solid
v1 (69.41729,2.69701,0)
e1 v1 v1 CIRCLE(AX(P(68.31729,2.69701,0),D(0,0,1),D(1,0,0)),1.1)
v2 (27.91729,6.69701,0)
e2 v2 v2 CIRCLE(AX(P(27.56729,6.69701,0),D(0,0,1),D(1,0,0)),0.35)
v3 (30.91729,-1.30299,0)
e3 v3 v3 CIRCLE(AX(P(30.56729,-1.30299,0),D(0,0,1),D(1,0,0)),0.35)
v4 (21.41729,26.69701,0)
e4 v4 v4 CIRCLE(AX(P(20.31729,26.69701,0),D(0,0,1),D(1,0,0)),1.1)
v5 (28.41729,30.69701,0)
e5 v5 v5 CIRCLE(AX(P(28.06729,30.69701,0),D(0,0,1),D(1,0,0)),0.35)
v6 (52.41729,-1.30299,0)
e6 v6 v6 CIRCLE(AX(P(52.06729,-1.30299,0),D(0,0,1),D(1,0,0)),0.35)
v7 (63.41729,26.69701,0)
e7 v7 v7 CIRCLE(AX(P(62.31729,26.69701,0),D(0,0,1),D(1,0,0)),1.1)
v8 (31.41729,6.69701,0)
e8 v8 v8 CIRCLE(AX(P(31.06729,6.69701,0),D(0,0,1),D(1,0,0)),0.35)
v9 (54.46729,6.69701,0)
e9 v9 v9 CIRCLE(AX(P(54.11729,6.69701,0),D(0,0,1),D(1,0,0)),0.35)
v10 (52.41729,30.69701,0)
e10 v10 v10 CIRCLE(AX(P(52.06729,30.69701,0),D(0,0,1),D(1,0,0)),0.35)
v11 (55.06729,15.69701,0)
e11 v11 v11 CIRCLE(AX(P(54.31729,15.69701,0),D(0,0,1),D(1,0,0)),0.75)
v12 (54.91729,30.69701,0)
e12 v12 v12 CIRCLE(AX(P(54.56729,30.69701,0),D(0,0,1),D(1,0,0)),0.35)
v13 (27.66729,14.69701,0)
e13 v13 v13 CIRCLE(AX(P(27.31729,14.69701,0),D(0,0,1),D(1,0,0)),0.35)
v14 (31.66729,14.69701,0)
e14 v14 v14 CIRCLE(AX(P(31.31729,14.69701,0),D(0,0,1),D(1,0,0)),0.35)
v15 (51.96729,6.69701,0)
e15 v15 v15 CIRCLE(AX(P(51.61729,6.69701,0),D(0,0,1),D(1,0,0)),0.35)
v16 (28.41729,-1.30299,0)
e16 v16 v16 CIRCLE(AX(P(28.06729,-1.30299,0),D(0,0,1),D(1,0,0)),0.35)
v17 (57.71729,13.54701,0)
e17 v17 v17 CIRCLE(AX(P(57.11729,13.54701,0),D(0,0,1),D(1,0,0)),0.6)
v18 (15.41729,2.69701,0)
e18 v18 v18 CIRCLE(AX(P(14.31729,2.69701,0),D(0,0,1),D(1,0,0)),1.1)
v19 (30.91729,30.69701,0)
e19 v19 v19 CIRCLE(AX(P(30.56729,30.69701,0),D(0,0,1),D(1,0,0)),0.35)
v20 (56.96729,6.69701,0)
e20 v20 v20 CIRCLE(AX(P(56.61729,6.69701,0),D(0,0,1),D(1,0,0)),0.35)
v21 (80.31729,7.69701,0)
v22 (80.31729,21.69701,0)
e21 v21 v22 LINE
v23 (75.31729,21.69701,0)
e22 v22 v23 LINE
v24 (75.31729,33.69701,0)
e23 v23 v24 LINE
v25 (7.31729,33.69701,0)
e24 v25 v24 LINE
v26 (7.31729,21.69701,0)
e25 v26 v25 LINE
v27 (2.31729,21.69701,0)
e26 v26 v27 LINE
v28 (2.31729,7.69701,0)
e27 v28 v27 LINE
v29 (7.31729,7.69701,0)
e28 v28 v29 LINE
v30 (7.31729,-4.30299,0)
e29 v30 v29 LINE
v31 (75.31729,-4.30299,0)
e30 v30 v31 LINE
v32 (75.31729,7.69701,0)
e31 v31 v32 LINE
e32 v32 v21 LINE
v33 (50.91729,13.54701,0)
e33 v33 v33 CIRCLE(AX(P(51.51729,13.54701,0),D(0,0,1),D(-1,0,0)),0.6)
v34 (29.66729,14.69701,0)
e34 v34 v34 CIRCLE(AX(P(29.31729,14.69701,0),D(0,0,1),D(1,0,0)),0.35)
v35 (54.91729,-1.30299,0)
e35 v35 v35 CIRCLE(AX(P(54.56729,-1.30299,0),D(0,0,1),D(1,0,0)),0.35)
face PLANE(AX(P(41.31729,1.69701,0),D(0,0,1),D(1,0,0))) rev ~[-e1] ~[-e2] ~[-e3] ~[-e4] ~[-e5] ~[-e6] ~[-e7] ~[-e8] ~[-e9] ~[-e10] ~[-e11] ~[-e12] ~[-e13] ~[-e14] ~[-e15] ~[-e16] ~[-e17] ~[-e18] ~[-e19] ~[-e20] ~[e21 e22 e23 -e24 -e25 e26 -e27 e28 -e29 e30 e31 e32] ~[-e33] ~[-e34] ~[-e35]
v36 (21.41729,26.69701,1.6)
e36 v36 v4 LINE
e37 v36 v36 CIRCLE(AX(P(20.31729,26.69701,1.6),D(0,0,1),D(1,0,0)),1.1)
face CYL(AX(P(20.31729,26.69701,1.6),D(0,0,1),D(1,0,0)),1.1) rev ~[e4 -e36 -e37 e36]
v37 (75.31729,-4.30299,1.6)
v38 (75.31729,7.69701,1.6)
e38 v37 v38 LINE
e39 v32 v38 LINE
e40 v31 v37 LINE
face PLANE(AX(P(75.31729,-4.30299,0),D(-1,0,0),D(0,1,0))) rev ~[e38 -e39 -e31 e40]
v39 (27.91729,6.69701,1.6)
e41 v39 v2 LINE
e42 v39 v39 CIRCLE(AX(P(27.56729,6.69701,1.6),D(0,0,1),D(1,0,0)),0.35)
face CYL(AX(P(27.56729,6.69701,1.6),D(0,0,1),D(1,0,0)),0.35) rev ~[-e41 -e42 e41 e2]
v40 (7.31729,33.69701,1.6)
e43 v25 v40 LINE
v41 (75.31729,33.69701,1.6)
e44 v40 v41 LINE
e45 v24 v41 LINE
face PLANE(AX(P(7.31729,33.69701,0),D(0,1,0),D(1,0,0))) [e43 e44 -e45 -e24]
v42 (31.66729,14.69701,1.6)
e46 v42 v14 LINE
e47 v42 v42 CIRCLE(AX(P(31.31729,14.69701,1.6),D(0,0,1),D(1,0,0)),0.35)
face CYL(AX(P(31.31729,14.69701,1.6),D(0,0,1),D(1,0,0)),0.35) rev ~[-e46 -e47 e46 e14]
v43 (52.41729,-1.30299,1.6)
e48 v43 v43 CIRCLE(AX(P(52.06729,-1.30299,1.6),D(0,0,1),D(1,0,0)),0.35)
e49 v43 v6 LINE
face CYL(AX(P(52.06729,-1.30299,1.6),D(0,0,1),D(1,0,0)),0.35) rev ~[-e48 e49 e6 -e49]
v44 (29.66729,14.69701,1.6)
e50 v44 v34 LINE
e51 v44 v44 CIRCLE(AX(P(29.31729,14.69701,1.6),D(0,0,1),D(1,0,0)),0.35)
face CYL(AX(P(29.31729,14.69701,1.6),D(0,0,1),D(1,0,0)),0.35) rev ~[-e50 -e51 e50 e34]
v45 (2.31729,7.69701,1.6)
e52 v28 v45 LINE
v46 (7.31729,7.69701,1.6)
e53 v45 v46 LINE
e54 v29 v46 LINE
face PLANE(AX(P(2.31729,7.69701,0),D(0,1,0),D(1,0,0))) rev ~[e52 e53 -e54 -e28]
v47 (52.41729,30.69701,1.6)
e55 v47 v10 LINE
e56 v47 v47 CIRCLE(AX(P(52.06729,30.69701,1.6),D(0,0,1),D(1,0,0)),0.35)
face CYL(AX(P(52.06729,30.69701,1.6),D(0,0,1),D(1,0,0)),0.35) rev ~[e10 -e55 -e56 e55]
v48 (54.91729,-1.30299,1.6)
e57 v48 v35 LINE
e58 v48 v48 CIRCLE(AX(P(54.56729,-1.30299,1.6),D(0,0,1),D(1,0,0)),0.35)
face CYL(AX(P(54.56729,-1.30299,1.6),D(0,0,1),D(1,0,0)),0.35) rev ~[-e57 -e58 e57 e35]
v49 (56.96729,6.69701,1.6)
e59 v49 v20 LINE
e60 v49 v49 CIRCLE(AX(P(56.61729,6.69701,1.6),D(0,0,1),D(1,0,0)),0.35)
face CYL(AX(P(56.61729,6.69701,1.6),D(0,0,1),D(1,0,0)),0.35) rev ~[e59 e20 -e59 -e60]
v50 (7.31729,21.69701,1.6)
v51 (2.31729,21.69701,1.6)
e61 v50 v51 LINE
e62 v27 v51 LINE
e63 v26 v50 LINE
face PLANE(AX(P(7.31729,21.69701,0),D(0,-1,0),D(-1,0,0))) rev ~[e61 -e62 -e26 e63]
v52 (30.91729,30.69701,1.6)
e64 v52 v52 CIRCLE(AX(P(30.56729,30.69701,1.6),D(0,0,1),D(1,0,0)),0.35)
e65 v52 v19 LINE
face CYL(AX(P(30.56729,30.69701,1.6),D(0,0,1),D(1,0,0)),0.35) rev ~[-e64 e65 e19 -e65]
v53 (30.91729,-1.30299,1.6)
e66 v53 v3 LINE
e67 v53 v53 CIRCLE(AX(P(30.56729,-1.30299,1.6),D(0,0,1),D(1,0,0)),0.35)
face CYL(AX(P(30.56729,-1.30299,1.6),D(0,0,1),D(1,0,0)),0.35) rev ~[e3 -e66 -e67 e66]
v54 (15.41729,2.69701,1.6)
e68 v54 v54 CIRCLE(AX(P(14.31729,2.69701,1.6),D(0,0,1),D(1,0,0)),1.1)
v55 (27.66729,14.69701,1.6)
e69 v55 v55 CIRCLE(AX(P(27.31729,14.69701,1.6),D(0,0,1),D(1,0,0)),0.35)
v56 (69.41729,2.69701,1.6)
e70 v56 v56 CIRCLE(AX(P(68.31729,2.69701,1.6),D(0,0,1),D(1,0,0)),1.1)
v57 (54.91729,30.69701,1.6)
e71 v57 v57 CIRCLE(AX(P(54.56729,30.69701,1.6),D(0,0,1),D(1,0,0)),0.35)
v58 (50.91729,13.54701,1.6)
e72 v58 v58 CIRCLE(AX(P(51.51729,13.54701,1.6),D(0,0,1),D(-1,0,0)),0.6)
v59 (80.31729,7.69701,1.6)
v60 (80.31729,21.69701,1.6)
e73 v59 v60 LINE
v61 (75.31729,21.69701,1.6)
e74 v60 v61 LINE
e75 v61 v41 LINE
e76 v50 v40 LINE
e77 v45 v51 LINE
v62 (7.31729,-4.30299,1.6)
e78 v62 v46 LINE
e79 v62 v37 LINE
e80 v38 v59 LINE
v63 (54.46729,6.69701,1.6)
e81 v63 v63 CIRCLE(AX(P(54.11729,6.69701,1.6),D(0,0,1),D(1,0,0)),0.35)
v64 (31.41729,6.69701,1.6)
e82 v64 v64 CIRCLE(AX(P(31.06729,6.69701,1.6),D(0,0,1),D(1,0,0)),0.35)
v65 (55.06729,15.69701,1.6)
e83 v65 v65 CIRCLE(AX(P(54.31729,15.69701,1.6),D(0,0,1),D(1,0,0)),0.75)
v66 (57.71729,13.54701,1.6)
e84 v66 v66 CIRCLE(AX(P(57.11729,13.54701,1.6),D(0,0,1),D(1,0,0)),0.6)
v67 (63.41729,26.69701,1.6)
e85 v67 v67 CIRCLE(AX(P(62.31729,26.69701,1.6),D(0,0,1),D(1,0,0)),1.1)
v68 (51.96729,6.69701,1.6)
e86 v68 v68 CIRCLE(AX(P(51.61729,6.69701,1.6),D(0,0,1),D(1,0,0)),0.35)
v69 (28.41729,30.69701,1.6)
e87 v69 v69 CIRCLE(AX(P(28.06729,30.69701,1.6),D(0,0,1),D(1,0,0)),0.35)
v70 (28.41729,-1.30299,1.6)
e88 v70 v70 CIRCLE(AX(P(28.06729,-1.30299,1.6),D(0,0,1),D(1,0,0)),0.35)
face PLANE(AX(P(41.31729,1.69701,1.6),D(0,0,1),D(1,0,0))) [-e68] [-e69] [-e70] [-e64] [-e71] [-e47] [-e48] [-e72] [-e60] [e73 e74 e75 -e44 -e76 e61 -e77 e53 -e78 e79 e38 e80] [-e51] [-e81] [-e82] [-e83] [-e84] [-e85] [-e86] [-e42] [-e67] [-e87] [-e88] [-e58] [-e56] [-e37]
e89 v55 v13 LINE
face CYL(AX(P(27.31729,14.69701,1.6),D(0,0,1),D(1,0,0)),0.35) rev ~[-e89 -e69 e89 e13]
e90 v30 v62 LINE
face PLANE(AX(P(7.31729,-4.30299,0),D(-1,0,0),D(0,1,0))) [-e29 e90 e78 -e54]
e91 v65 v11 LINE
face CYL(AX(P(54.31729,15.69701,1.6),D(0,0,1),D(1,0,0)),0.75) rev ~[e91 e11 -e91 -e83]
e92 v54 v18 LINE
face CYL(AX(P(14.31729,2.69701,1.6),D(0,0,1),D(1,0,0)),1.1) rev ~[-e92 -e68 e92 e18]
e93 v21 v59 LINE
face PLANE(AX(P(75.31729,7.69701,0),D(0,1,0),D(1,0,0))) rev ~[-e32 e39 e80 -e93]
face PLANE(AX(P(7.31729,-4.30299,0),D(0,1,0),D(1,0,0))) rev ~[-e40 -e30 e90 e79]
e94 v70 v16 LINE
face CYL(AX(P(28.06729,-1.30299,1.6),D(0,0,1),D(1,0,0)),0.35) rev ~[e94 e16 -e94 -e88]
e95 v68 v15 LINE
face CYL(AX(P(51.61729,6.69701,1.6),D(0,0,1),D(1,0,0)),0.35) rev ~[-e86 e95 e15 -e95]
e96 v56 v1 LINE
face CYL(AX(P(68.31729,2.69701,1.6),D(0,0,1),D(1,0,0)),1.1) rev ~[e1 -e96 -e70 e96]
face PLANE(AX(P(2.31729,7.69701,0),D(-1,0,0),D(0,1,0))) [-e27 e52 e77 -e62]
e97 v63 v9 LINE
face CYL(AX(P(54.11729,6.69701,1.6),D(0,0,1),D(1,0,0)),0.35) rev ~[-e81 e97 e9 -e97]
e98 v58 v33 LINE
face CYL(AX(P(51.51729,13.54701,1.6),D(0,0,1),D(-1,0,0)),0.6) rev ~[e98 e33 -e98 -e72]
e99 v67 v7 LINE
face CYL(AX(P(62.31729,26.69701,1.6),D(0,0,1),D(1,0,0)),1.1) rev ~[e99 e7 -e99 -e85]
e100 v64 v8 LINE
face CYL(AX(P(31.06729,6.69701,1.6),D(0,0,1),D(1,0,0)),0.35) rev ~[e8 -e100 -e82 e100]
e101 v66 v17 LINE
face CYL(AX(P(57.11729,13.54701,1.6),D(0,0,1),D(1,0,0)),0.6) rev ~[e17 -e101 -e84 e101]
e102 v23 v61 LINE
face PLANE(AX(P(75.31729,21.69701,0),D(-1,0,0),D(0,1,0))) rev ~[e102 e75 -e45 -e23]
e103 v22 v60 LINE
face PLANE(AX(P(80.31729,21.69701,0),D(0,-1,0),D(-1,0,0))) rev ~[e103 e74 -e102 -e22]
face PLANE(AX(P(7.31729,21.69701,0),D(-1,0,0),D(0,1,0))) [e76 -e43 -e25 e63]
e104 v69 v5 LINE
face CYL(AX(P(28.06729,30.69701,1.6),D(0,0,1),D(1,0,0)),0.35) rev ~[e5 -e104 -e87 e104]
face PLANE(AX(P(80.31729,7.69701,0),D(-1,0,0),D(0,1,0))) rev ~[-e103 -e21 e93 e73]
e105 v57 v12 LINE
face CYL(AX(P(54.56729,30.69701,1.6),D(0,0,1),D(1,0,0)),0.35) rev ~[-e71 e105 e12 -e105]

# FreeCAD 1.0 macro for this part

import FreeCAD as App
import Part
import Sketcher
Q = App.Units.Quantity

doc = App.newDocument("Part")
body = doc.addObject("PartDesign::Body", "Body")

# Sketch on XY plane
sketch1 = body.newObject("Sketcher::SketchObject", "Sketch")
sketch1.AttachmentSupport = (doc.getObject("XY_Plane"), [""])
sketch1.MapMode = "FlatFace"
sketch1.addGeometry([
    Part.LineSegment(App.Vector(7, 8, 0), App.Vector(7, -4, 0)),  # 0
    Part.LineSegment(App.Vector(7, -4, 0), App.Vector(75, -4, 0)),  # 1
    Part.LineSegment(App.Vector(75, -4, 0), App.Vector(75, 8, 0)),  # 2
    Part.LineSegment(App.Vector(75, 8, 0), App.Vector(80, 8, 0)),  # 3
    Part.LineSegment(App.Vector(80, 8, 0), App.Vector(80, 22, 0)),  # 4
    Part.LineSegment(App.Vector(80, 22, 0), App.Vector(75, 22, 0)),  # 5
    Part.LineSegment(App.Vector(75, 22, 0), App.Vector(75, 34, 0)),  # 6
    Part.LineSegment(App.Vector(75, 34, 0), App.Vector(7, 34, 0)),  # 7
    Part.LineSegment(App.Vector(7, 34, 0), App.Vector(7, 22, 0)),  # 8
    Part.LineSegment(App.Vector(7, 22, 0), App.Vector(2, 22, 0)),  # 9
    Part.LineSegment(App.Vector(2, 22, 0), App.Vector(2, 8, 0)),  # 10
    Part.LineSegment(App.Vector(2, 8, 0), App.Vector(7, 8, 0)),  # 11
], False)
sketch1.addConstraint([
    Sketcher.Constraint("Coincident", 0, 2, 1, 1),
    Sketcher.Constraint("Coincident", 1, 2, 2, 1),
    Sketcher.Constraint("Coincident", 2, 2, 3, 1),
    Sketcher.Constraint("Coincident", 3, 2, 4, 1),
    Sketcher.Constraint("Coincident", 4, 2, 5, 1),
    Sketcher.Constraint("Coincident", 5, 2, 6, 1),
    Sketcher.Constraint("Coincident", 6, 2, 7, 1),
    Sketcher.Constraint("Coincident", 7, 2, 8, 1),
    Sketcher.Constraint("Coincident", 8, 2, 9, 1),
    Sketcher.Constraint("Coincident", 9, 2, 10, 1),
    Sketcher.Constraint("Coincident", 10, 2, 11, 1),
    Sketcher.Constraint("Coincident", 11, 2, 0, 1),
    Sketcher.Constraint("Vertical", 0),
    Sketcher.Constraint("Horizontal", 1),
    Sketcher.Constraint("Vertical", 2),
    Sketcher.Constraint("Horizontal", 3),
    Sketcher.Constraint("Vertical", 4),
    Sketcher.Constraint("Horizontal", 5),
    Sketcher.Constraint("Vertical", 6),
    Sketcher.Constraint("Horizontal", 7),
    Sketcher.Constraint("Vertical", 8),
    Sketcher.Constraint("Horizontal", 9),
    Sketcher.Constraint("Vertical", 10),
    Sketcher.Constraint("Horizontal", 11),
    Sketcher.Constraint("Horizontal", 5, 2, 8, 2),
    Sketcher.Constraint("Horizontal", 3, 2, 10, 2),
    Sketcher.Constraint("Vertical", 2, 2, 5, 2),
    Sketcher.Constraint("Vertical", 0, 2, 7, 2),
    Sketcher.Constraint("Equal", 5, 9),
    Sketcher.Constraint("Equal", 2, 6),
    Sketcher.Constraint("DistanceX", 1, 1, 1, 2, Q("68 mm")),
    Sketcher.Constraint("DistanceX", 3, 1, 3, 2, Q("5 mm")),
    Sketcher.Constraint("DistanceY", 0, 2, 0, 1, Q("12 mm")),
    Sketcher.Constraint("DistanceY", 4, 1, 4, 2, Q("14 mm")),
    Sketcher.Constraint("DistanceX", -1, 1, 0, 2, Q("7.31729 mm")),
    Sketcher.Constraint("DistanceY", 0, 2, -1, 1, Q("4.30299 mm")),
])
pad1 = body.newObject("PartDesign::Pad", "Pad")
pad1.Profile = sketch1
pad1.Length = 1.6

# Sketch on XY plane
sketch2 = body.newObject("Sketcher::SketchObject", "Sketch001")
sketch2.AttachmentSupport = (doc.getObject("XY_Plane"), [""])
sketch2.MapMode = "FlatFace"
sketch2.AttachmentOffset = App.Placement(App.Vector(0, 0, 1.6), App.Rotation())
sketch2.addGeometry([
    Part.Circle(App.Vector(51.62, 6.7, 0), App.Vector(0, 0, 1), 0.35),  # 0
    Part.Circle(App.Vector(56.62, 6.7, 0), App.Vector(0, 0, 1), 0.35),  # 1
    Part.Circle(App.Vector(54.12, 6.7, 0), App.Vector(0, 0, 1), 0.35),  # 2
    Part.Circle(App.Vector(28.07, -1.3, 0), App.Vector(0, 0, 1), 0.35),  # 3
    Part.Circle(App.Vector(30.57, -1.3, 0), App.Vector(0, 0, 1), 0.35),  # 4
    Part.Circle(App.Vector(52.07, -1.3, 0), App.Vector(0, 0, 1), 0.35),  # 5
    Part.Circle(App.Vector(54.57, -1.3, 0), App.Vector(0, 0, 1), 0.35),  # 6
    Part.Circle(App.Vector(54.57, 30.7, 0), App.Vector(0, 0, 1), 0.35),  # 7
    Part.Circle(App.Vector(52.07, 30.7, 0), App.Vector(0, 0, 1), 0.35),  # 8
    Part.Circle(App.Vector(30.57, 30.7, 0), App.Vector(0, 0, 1), 0.35),  # 9
    Part.Circle(App.Vector(28.07, 30.7, 0), App.Vector(0, 0, 1), 0.35),  # 10
    Part.Circle(App.Vector(27.57, 6.7, 0), App.Vector(0, 0, 1), 0.35),  # 11
    Part.Circle(App.Vector(31.07, 6.7, 0), App.Vector(0, 0, 1), 0.35),  # 12
    Part.Circle(App.Vector(54.32, 15.7, 0), App.Vector(0, 0, 1), 0.75),  # 13
    Part.Circle(App.Vector(51.52, 13.55, 0), App.Vector(0, 0, 1), 0.6),  # 14
    Part.Circle(App.Vector(57.12, 13.55, 0), App.Vector(0, 0, 1), 0.6),  # 15
    Part.Circle(App.Vector(27.32, 14.7, 0), App.Vector(0, 0, 1), 0.35),  # 16
    Part.Circle(App.Vector(29.32, 14.7, 0), App.Vector(0, 0, 1), 0.35),  # 17
    Part.Circle(App.Vector(31.32, 14.7, 0), App.Vector(0, 0, 1), 0.35),  # 18
], False)
sketch2.addConstraint([
    Sketcher.Constraint("Equal", 0, 1),
    Sketcher.Constraint("Equal", 1, 2),
    Sketcher.Constraint("Equal", 2, 3),
    Sketcher.Constraint("Equal", 3, 4),
    Sketcher.Constraint("Equal", 4, 5),
    Sketcher.Constraint("Equal", 5, 6),
    Sketcher.Constraint("Equal", 6, 7),
    Sketcher.Constraint("Equal", 7, 8),
    Sketcher.Constraint("Equal", 8, 9),
    Sketcher.Constraint("Equal", 9, 10),
    Sketcher.Constraint("Equal", 10, 11),
    Sketcher.Constraint("Equal", 11, 12),
    Sketcher.Constraint("Equal", 14, 15),
    Sketcher.Constraint("Equal", 12, 16),
    Sketcher.Constraint("Equal", 16, 17),
    Sketcher.Constraint("Equal", 17, 18),
    Sketcher.Constraint("Horizontal", 0, 3, 1, 3),
    Sketcher.Constraint("Horizontal", 1, 3, 2, 3),
    Sketcher.Constraint("Horizontal", 3, 3, 4, 3),
    Sketcher.Constraint("Horizontal", 4, 3, 5, 3),
    Sketcher.Constraint("Horizontal", 5, 3, 6, 3),
    Sketcher.Constraint("Horizontal", 7, 3, 8, 3),
    Sketcher.Constraint("Horizontal", 8, 3, 9, 3),
    Sketcher.Constraint("Horizontal", 9, 3, 10, 3),
    Sketcher.Constraint("Horizontal", 2, 3, 11, 3),
    Sketcher.Constraint("Horizontal", 11, 3, 12, 3),
    Sketcher.Constraint("Horizontal", 14, 3, 15, 3),
    Sketcher.Constraint("Horizontal", 16, 3, 17, 3),
    Sketcher.Constraint("Horizontal", 17, 3, 18, 3),
    Sketcher.Constraint("Vertical", 6, 3, 7, 3),
    Sketcher.Constraint("Vertical", 5, 3, 8, 3),
    Sketcher.Constraint("Vertical", 4, 3, 9, 3),
    Sketcher.Constraint("Vertical", 3, 3, 10, 3),
    Sketcher.Constraint("Diameter", 0, Q("0.7 mm")),
    Sketcher.Constraint("Diameter", 13, Q("1.5 mm")),
    Sketcher.Constraint("Diameter", 14, Q("1.2 mm")),
    Sketcher.Constraint("DistanceX", 0, 3, 1, 3, Q("5 mm")),
    Sketcher.Constraint("DistanceY", 3, 3, 0, 3, Q("8 mm")),
    Sketcher.Constraint("DistanceX", 3, 3, 5, 3, Q("24 mm")),
    Sketcher.Constraint("DistanceX", 4, 3, 6, 3, Q("24 mm")),
    Sketcher.Constraint("DistanceY", 2, 3, 7, 3, Q("24 mm")),
    Sketcher.Constraint("DistanceX", 11, 3, 4, 3, Q("3 mm")),
    Sketcher.Constraint("DistanceX", 3, 3, 12, 3, Q("3 mm")),
    Sketcher.Constraint("DistanceY", 2, 3, 13, 3, Q("9 mm")),
    Sketcher.Constraint("DistanceX", 2, 3, 15, 3, Q("3 mm")),
    Sketcher.Constraint("DistanceY", 11, 3, 16, 3, Q("8 mm")),
    Sketcher.Constraint("DistanceX", 16, 3, 17, 3, Q("2 mm")),
    Sketcher.Constraint("DistanceX", 17, 3, 18, 3, Q("2 mm")),
    Sketcher.Constraint("DistanceX", 0, 3, 2, 3, Q("2.5 mm")),
    Sketcher.Constraint("DistanceX", 3, 3, 4, 3, Q("2.5 mm")),
    Sketcher.Constraint("DistanceX", 2, 3, 13, 3, Q("0.2 mm")),
    Sketcher.Constraint("DistanceX", 14, 3, 13, 3, Q("2.8 mm")),
    Sketcher.Constraint("DistanceX", 3, 3, 0, 3, Q("23.55 mm")),
    Sketcher.Constraint("DistanceY", 14, 3, 13, 3, Q("2.15 mm")),
    Sketcher.Constraint("DistanceX", 16, 3, 11, 3, Q("0.25 mm")),
    Sketcher.Constraint("DistanceX", -1, 1, 0, 3, Q("51.61729 mm")),
    Sketcher.Constraint("DistanceY", -1, 1, 0, 3, Q("6.69701 mm")),
])
pocket1 = body.newObject("PartDesign::Pocket", "Pocket")
pocket1.Profile = sketch2
pocket1.Length = 4

# Sketch on XY plane
sketch3 = body.newObject("Sketcher::SketchObject", "Sketch002")
sketch3.AttachmentSupport = (doc.getObject("XY_Plane"), [""])
sketch3.MapMode = "FlatFace"
sketch3.AttachmentOffset = App.Placement(App.Vector(0, 0, 1.6), App.Rotation())
sketch3.addGeometry([
    Part.Circle(App.Vector(62.3, 26.7, 0), App.Vector(0, 0, 1), 1.1),
    Part.Circle(App.Vector(20.3, 26.7, 0), App.Vector(0, 0, 1), 1.1),
    Part.Circle(App.Vector(68.3, 2.7, 0), App.Vector(0, 0, 1), 1.1),
    Part.Circle(App.Vector(14.3, 2.7, 0), App.Vector(0, 0, 1), 1.1),
], False)
sketch3.addConstraint([
    Sketcher.Constraint("Equal", 0, 1),
    Sketcher.Constraint("Equal", 1, 2),
    Sketcher.Constraint("Equal", 2, 3),
    Sketcher.Constraint("Horizontal", 0, 3, 1, 3),
    Sketcher.Constraint("Horizontal", 2, 3, 3, 3),
    Sketcher.Constraint("Diameter", 0, Q("2.2 mm")),
    Sketcher.Constraint("DistanceX", 1, 3, 0, 3, Q("42 mm")),
    Sketcher.Constraint("DistanceX", 0, 3, 2, 3, Q("6 mm")),
    Sketcher.Constraint("DistanceY", 2, 3, 0, 3, Q("24 mm")),
    Sketcher.Constraint("DistanceX", 3, 3, 1, 3, Q("6 mm")),
    Sketcher.Constraint("DistanceX", -1, 1, 0, 3, Q("62.31729 mm")),
    Sketcher.Constraint("DistanceY", -1, 1, 0, 3, Q("26.69701 mm")),
])
pocket2 = body.newObject("PartDesign::Pocket", "Pocket001")
pocket2.Profile = sketch3
pocket2.Length = 25

doc.recompute()
